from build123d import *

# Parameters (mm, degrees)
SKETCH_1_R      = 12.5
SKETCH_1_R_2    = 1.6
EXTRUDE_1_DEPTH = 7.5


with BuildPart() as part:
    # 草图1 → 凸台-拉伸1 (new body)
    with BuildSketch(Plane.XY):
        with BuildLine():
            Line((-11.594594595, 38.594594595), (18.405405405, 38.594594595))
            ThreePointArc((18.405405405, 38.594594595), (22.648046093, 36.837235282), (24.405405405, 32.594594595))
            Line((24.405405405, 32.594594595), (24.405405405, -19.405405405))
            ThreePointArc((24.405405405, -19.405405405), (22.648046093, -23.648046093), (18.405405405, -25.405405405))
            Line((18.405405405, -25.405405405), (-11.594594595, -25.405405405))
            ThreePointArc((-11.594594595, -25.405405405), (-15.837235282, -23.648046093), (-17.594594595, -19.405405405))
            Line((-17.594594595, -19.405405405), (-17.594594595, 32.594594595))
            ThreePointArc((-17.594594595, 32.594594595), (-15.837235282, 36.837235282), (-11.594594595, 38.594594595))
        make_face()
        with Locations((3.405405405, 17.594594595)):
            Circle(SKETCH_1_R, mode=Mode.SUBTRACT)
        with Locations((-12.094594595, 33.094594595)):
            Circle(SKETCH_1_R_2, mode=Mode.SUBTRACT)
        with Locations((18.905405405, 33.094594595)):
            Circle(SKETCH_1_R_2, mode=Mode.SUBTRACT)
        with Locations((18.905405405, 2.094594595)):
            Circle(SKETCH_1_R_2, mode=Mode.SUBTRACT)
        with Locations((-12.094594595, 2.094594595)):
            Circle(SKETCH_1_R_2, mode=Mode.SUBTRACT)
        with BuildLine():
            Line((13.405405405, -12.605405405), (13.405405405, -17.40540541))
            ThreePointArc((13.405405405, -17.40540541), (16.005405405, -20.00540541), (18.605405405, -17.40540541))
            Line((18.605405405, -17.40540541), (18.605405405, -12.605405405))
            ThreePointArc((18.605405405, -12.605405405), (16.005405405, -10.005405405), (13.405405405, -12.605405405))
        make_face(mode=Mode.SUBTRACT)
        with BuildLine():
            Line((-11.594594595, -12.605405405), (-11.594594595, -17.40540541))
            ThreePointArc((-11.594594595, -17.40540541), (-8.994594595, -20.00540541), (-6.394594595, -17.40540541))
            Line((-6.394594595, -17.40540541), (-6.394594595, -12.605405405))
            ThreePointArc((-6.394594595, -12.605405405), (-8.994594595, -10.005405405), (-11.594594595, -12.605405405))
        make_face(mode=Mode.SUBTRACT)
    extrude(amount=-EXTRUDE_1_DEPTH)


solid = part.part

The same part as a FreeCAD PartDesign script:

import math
import FreeCAD as App
import Part
import Sketcher

V = App.Vector
Q = App.Units.Quantity

doc = App.newDocument("Part")
params = doc.addObject("Spreadsheet::Sheet", "Params")
for row, (alias, value) in enumerate([
    ("sketch1_diameter", "25 mm"),
    ("sketch1_radius", "6 mm"),
    ("sketch1_diameter2", "3.2 mm"),
    ("sketch1_radius2", "2.6 mm"),
    ("sketch1_width", "30 mm"),
    ("pad1_length", "7.5 mm"),
], start=1):
    params.set(f"A{row}", alias)
    params.set(f"B{row}", "=" + value)
    params.setAlias(f"B{row}", alias)

body = doc.addObject("PartDesign::Body", "Body")

sketch1 = body.newObject("Sketcher::SketchObject", "Sketch")
sketch1.AttachmentSupport = (doc.getObject("XY_Plane"), [""])
sketch1.MapMode = "FlatFace"
sketch1.addGeometry(Part.LineSegment(V(18.405405, 38.594595, 0), V(-11.594595, 38.594595, 0)), False)
sketch1.addGeometry(Part.ArcOfCircle(Part.Circle(V(-11.594595, 32.594595, 0), V(0, 0, 1), 6), math.radians(90), math.radians(180)), False)
sketch1.addGeometry(Part.LineSegment(V(-17.594595, 32.594595, 0), V(-17.594595, -19.405405, 0)), False)
sketch1.addGeometry(Part.ArcOfCircle(Part.Circle(V(-11.594595, -19.405405, 0), V(0, 0, 1), 6), math.radians(180), math.radians(270)), False)
sketch1.addGeometry(Part.LineSegment(V(-11.594595, -25.405405, 0), V(18.405405, -25.405405, 0)), False)
sketch1.addGeometry(Part.ArcOfCircle(Part.Circle(V(18.405405, -19.405405, 0), V(0, 0, 1), 6), math.radians(-90), math.radians(0)), False)
sketch1.addGeometry(Part.LineSegment(V(24.405405, -19.405405, 0), V(24.405405, 32.594595, 0)), False)
sketch1.addGeometry(Part.ArcOfCircle(Part.Circle(V(18.405405, 32.594595, 0), V(0, 0, 1), 6), math.radians(0), math.radians(90)), False)
sketch1.addGeometry(Part.ArcOfCircle(Part.Circle(V(16.005405, -12.605405, 0), V(0, 0, 1), 2.6), math.radians(0), math.radians(180)), False)
sketch1.addGeometry(Part.LineSegment(V(18.605405, -12.605405, 0), V(18.605405, -17.405405, 0)), False)
sketch1.addGeometry(Part.ArcOfCircle(Part.Circle(V(16.005405, -17.405405, 0), V(0, 0, 1), 2.6), math.radians(180), math.radians(360)), False)
sketch1.addGeometry(Part.LineSegment(V(13.405405, -17.405405, 0), V(13.405405, -12.605405, 0)), False)
sketch1.addGeometry(Part.Circle(V(18.905405, 2.094595, 0), V(0, 0, 1), 1.6), False)
sketch1.addGeometry(Part.ArcOfCircle(Part.Circle(V(-8.994595, -12.605405, 0), V(0, 0, 1), 2.6), math.radians(0), math.radians(180)), False)
sketch1.addGeometry(Part.LineSegment(V(-6.394595, -12.605405, 0), V(-6.394595, -17.405405, 0)), False)
sketch1.addGeometry(Part.ArcOfCircle(Part.Circle(V(-8.994595, -17.405405, 0), V(0, 0, 1), 2.6), math.radians(180), math.radians(360)), False)
sketch1.addGeometry(Part.LineSegment(V(-11.594595, -17.405405, 0), V(-11.594595, -12.605405, 0)), False)
sketch1.addGeometry(Part.Circle(V(-12.094595, 2.094595, 0), V(0, 0, 1), 1.6), False)
sketch1.addGeometry(Part.Circle(V(18.905405, 33.094595, 0), V(0, 0, 1), 1.6), False)
sketch1.addGeometry(Part.Circle(V(3.405405, 17.594595, 0), V(0, 0, 1), 12.5), False)
sketch1.addGeometry(Part.Circle(V(-12.094595, 33.094595, 0), V(0, 0, 1), 1.6), False)
sketch1.addConstraint(Sketcher.Constraint("Tangent", 0, 2, 1, 1))
sketch1.addConstraint(Sketcher.Constraint("Tangent", 1, 2, 2, 1))
sketch1.addConstraint(Sketcher.Constraint("Tangent", 2, 2, 3, 1))
sketch1.addConstraint(Sketcher.Constraint("Tangent", 3, 2, 4, 1))
sketch1.addConstraint(Sketcher.Constraint("Tangent", 4, 2, 5, 1))
sketch1.addConstraint(Sketcher.Constraint("Tangent", 5, 2, 6, 1))
sketch1.addConstraint(Sketcher.Constraint("Tangent", 6, 2, 7, 1))
sketch1.addConstraint(Sketcher.Constraint("Tangent", 7, 2, 0, 1))
sketch1.addConstraint(Sketcher.Constraint("Tangent", 8, 1, 9, 1))
sketch1.addConstraint(Sketcher.Constraint("Tangent", 9, 2, 10, 2))
sketch1.addConstraint(Sketcher.Constraint("Tangent", 10, 1, 11, 1))
sketch1.addConstraint(Sketcher.Constraint("Tangent", 11, 2, 8, 2))
sketch1.addConstraint(Sketcher.Constraint("Tangent", 13, 1, 14, 1))
sketch1.addConstraint(Sketcher.Constraint("Tangent", 14, 2, 15, 2))
sketch1.addConstraint(Sketcher.Constraint("Tangent", 15, 1, 16, 1))
sketch1.addConstraint(Sketcher.Constraint("Tangent", 16, 2, 13, 2))
sketch1.addConstraint(Sketcher.Constraint("Horizontal", 0))
sketch1.addConstraint(Sketcher.Constraint("Vertical", 2))
sketch1.addConstraint(Sketcher.Constraint("Horizontal", 4))
sketch1.addConstraint(Sketcher.Constraint("Vertical", 6))
sketch1.addConstraint(Sketcher.Constraint("Vertical", 9))
sketch1.addConstraint(Sketcher.Constraint("Vertical", 11))
sketch1.addConstraint(Sketcher.Constraint("Vertical", 14))
sketch1.addConstraint(Sketcher.Constraint("Vertical", 16))
sketch1.addConstraint(Sketcher.Constraint("Equal", 1, 3))
sketch1.addConstraint(Sketcher.Constraint("Equal", 3, 5))
sketch1.addConstraint(Sketcher.Constraint("Equal", 5, 7))
sketch1.addConstraint(Sketcher.Constraint("Equal", 10, 13))
sketch1.addConstraint(Sketcher.Constraint("Equal", 12, 17))
sketch1.addConstraint(Sketcher.Constraint("Equal", 17, 18))
sketch1.addConstraint(Sketcher.Constraint("Equal", 18, 20))
sketch1.addConstraint(Sketcher.Constraint("Horizontal", 8, 3, 13, 3))
sketch1.addConstraint(Sketcher.Constraint("Horizontal", 10, 3, 15, 3))
sketch1.addConstraint(Sketcher.Constraint("Horizontal", 12, 3, 17, 3))
sketch1.addConstraint(Sketcher.Constraint("Horizontal", 18, 3, 20, 3))
sketch1.addConstraint(Sketcher.Constraint("Vertical", 12, 3, 18, 3))
sketch1.addConstraint(Sketcher.Constraint("Vertical", 17, 3, 20, 3))
sketch1.addConstraint(Sketcher.Constraint("Vertical", 3, 2, 15, 1))
sketch1.addConstraint(Sketcher.Constraint("Diameter", 19, Q("25 mm")))
sketch1.addConstraint(Sketcher.Constraint("Radius", 1, Q("6 mm")))
sketch1.addConstraint(Sketcher.Constraint("Diameter", 12, Q("3.2 mm")))
sketch1.addConstraint(Sketcher.Constraint("Radius", 8, Q("2.6 mm")))
sketch1.addConstraint(Sketcher.Constraint("DistanceX", 0, 2, 0, 1, Q("30 mm")))
sketch1.addConstraint(Sketcher.Constraint("DistanceY", 2, 2, 2, 1, Q("52 mm")))
sketch1.addConstraint(Sketcher.Constraint("DistanceY", 9, 2, 9, 1, Q("4.8 mm")))
sketch1.addConstraint(Sketcher.Constraint("DistanceY", 5, 3, 10, 3, Q("2 mm")))
sketch1.addConstraint(Sketcher.Constraint("DistanceX", 13, 3, 8, 3, Q("25 mm")))
sketch1.addConstraint(Sketcher.Constraint("DistanceX", 17, 3, 12, 3, Q("31 mm")))
sketch1.addConstraint(Sketcher.Constraint("DistanceY", 12, 3, 18, 3, Q("31 mm")))
sketch1.addConstraint(Sketcher.Constraint("DistanceX", 1, 3, 19, 3, Q("15 mm")))
sketch1.addConstraint(Sketcher.Constraint("DistanceY", 19, 3, 1, 3, Q("15 mm")))
sketch1.addConstraint(Sketcher.Constraint("DistanceX", 8, 3, 12, 3, Q("2.9 mm")))
sketch1.addConstraint(Sketcher.Constraint("DistanceY", 8, 3, 12, 3, Q("14.7 mm")))
sketch1.addConstraint(Sketcher.Constraint("DistanceX", 1, 3, -1, 1, Q("11.594595 mm")))
sketch1.addConstraint(Sketcher.Constraint("DistanceY", -1, 1, 1, 3, Q("32.594595 mm")))
sketch1.setExpression("Constraints[38]", "Params.sketch1_diameter")
sketch1.setExpression("Constraints[39]", "Params.sketch1_radius")
sketch1.setExpression("Constraints[40]", "Params.sketch1_diameter2")
sketch1.setExpression("Constraints[41]", "Params.sketch1_radius2")
sketch1.setExpression("Constraints[42]", "Params.sketch1_width")
pad1 = body.newObject("PartDesign::Pad", "Pad")
pad1.Profile = sketch1
pad1.setExpression("Length", "Params.pad1_length")
pad1.Reversed = True

doc.recompute()
